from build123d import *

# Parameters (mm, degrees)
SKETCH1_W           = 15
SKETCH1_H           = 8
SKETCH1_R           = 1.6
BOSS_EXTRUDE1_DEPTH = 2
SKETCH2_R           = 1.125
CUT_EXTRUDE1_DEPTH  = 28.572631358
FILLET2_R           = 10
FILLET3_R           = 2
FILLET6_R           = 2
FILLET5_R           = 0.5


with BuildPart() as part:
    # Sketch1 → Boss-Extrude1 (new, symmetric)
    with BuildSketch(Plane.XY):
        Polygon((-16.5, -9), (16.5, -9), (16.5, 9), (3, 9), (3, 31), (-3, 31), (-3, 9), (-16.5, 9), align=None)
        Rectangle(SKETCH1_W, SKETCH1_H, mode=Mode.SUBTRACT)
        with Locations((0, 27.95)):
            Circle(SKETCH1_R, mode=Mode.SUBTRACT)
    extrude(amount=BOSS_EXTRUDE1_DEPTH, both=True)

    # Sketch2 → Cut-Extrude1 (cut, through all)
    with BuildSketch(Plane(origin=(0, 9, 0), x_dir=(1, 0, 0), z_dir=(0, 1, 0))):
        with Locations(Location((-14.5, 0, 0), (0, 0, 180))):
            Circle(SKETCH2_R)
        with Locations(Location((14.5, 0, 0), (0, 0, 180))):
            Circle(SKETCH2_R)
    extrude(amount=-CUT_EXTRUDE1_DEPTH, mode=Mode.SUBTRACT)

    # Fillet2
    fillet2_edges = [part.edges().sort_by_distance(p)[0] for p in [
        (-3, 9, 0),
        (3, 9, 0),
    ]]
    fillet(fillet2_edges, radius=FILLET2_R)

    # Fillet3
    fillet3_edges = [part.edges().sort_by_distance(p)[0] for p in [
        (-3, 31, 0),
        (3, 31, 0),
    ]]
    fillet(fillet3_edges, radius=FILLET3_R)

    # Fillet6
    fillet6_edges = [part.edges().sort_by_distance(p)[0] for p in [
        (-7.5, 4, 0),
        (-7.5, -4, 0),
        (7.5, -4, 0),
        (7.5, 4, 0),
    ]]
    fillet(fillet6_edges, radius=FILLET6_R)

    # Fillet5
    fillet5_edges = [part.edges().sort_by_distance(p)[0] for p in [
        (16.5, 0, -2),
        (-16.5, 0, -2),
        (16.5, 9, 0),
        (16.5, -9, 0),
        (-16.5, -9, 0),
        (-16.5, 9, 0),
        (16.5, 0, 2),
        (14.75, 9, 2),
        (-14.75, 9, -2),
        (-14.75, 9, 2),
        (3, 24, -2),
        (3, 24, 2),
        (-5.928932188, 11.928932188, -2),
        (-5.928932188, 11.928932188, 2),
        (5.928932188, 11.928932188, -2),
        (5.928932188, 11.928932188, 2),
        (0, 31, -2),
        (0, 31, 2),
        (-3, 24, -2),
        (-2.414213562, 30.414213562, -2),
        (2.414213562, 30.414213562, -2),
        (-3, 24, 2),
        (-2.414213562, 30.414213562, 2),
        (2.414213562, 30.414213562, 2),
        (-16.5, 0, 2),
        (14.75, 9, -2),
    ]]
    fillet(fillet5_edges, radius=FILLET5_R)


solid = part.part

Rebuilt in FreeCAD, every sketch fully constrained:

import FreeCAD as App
import Part
import Sketcher

V = App.Vector
Q = App.Units.Quantity


def edges_at(feature, points):
    """Names of the edges that pass closest to the given points."""
    edges = feature.Shape.Edges
    near = lambda p: min(range(len(edges)), key=lambda i: edges[i].distToShape(Part.Vertex(*p))[0])
    return sorted({f"Edge{near(p) + 1}" for p in points})


def add_polygon(sketch, points):
    """Adds a closed chain of lines whose ends are joined by coincident constraints."""
    first, n = sketch.GeometryCount, len(points)
    for a, b in zip(points, points[1:] + points[:1]):
        sketch.addGeometry(Part.LineSegment(App.Vector(*a, 0), App.Vector(*b, 0)), False)
    for i in range(n):
        sketch.addConstraint(Sketcher.Constraint("Coincident", first + i, 2, first + (i + 1) % n, 1))

doc = App.newDocument("Part")
params = doc.addObject("Spreadsheet::Sheet", "Params")
for row, (alias, value) in enumerate([
    ("sketch1_diameter", "3.2 mm"),
    ("sketch1_width", "33 mm"),
    ("sketch1_width2", "6 mm"),
    ("sketch1_width3", "15 mm"),
    ("sketch1_height", "18 mm"),
    ("pad1_length", "4 mm"),
    ("sketch2_diameter", "2.25 mm"),
    ("fillet_radius", "10 mm"),
    ("fillet2_radius", "2 mm"),
    ("fillet3_radius", "2 mm"),
    ("fillet4_radius", "0.5 mm"),
], start=1):
    params.set(f"A{row}", alias)
    params.set(f"B{row}", "=" + value)
    params.setAlias(f"B{row}", alias)

body = doc.addObject("PartDesign::Body", "Body")

sketch1 = body.newObject("Sketcher::SketchObject", "Sketch")
sketch1.AttachmentSupport = (doc.getObject("XY_Plane"), [""])
sketch1.MapMode = "FlatFace"
add_polygon(sketch1, [(-16.5, -9), (16.5, -9), (16.5, 9), (3, 9), (3, 31), (-3, 31), (-3, 9), (-16.5, 9)])
add_polygon(sketch1, [(7.5, -4), (-7.5, -4), (-7.5, 4), (7.5, 4)])
sketch1.addGeometry(Part.Circle(V(0, 27.95, 0), V(0, 0, 1), 1.6), False)
sketch1.addConstraint(Sketcher.Constraint("Horizontal", 0))
sketch1.addConstraint(Sketcher.Constraint("Vertical", 1))
sketch1.addConstraint(Sketcher.Constraint("Horizontal", 2))
sketch1.addConstraint(Sketcher.Constraint("Vertical", 3))
sketch1.addConstraint(Sketcher.Constraint("Horizontal", 4))
sketch1.addConstraint(Sketcher.Constraint("Vertical", 5))
sketch1.addConstraint(Sketcher.Constraint("Horizontal", 6))
sketch1.addConstraint(Sketcher.Constraint("Vertical", 7))
sketch1.addConstraint(Sketcher.Constraint("Horizontal", 8))
sketch1.addConstraint(Sketcher.Constraint("Vertical", 9))
sketch1.addConstraint(Sketcher.Constraint("Horizontal", 10))
sketch1.addConstraint(Sketcher.Constraint("Vertical", 11))
sketch1.addConstraint(Sketcher.Constraint("Symmetric", 0, 2, 6, 2, -1, 1))
sketch1.addConstraint(Sketcher.Constraint("Symmetric", 8, 2, 10, 2, -1, 1))
sketch1.addConstraint(Sketcher.Constraint("Symmetric", 2, 2, 5, 2, -2))
sketch1.addConstraint(Sketcher.Constraint("PointOnObject", 12, 3, -2))
sketch1.addConstraint(Sketcher.Constraint("Diameter", 12, Q("3.2 mm")))
sketch1.addConstraint(Sketcher.Constraint("DistanceX", 0, 1, 0, 2, Q("33 mm")))
sketch1.addConstraint(Sketcher.Constraint("DistanceX", 4, 2, 4, 1, Q("6 mm")))
sketch1.addConstraint(Sketcher.Constraint("DistanceX", 8, 2, 8, 1, Q("15 mm")))
sketch1.addConstraint(Sketcher.Constraint("DistanceY", 1, 1, 1, 2, Q("18 mm")))
sketch1.addConstraint(Sketcher.Constraint("DistanceY", 3, 1, 3, 2, Q("22 mm")))
sketch1.addConstraint(Sketcher.Constraint("DistanceY", 9, 1, 9, 2, Q("8 mm")))
sketch1.addConstraint(Sketcher.Constraint("DistanceY", -1, 1, 12, 3, Q("27.95 mm")))
sketch1.setExpression("Constraints[28]", "Params.sketch1_diameter")
sketch1.setExpression("Constraints[29]", "Params.sketch1_width")
sketch1.setExpression("Constraints[30]", "Params.sketch1_width2")
sketch1.setExpression("Constraints[31]", "Params.sketch1_width3")
sketch1.setExpression("Constraints[32]", "Params.sketch1_height")
pad1 = body.newObject("PartDesign::Pad", "Pad")
pad1.Profile = sketch1
pad1.setExpression("Length", "Params.pad1_length")
pad1.Midplane = True

sketch2 = body.newObject("Sketcher::SketchObject", "Sketch001")
sketch2.AttachmentSupport = (doc.getObject("XZ_Plane"), [""])
sketch2.MapMode = "FlatFace"
sketch2.AttachmentOffset = App.Placement(V(0, 0, -9), App.Rotation())
sketch2.addGeometry(Part.Circle(V(-14.5, 0, 0), V(0, 0, 1), 1.125), False)
sketch2.addGeometry(Part.Circle(V(14.5, 0, 0), V(0, 0, 1), 1.125), False)
sketch2.addConstraint(Sketcher.Constraint("Equal", 0, 1))
sketch2.addConstraint(Sketcher.Constraint("Symmetric", 0, 3, 1, 3, -1, 1))
sketch2.addConstraint(Sketcher.Constraint("PointOnObject", 0, 3, -1))
sketch2.addConstraint(Sketcher.Constraint("Diameter", 0, Q("2.25 mm")))
sketch2.addConstraint(Sketcher.Constraint("DistanceX", 0, 3, 1, 3, Q("29 mm")))
sketch2.setExpression("Constraints[3]", "Params.sketch2_diameter")
pocket1 = body.newObject("PartDesign::Pocket", "Pocket")
pocket1.Profile = sketch2
pocket1.Type = "ThroughAll"
pocket1.Reversed = True
doc.recompute()

fillet = body.newObject("PartDesign::Fillet", "Fillet")
fillet.Base = (pocket1, edges_at(pocket1, [(-3, 9, 0), (3, 9, 0)]))
fillet.setExpression("Radius", "Params.fillet_radius")
doc.recompute()

fillet2 = body.newObject("PartDesign::Fillet", "Fillet001")
fillet2.Base = (fillet, edges_at(fillet, [(-3, 31, 0), (3, 31, 0)]))
fillet2.setExpression("Radius", "Params.fillet2_radius")
doc.recompute()

fillet3 = body.newObject("PartDesign::Fillet", "Fillet002")
fillet3.Base = (fillet2, edges_at(fillet2, [
    (-7.5, 4, 0),
    (-7.5, -4, 0),
    (7.5, -4, 0),
    (7.5, 4, 0),
]))
fillet3.setExpression("Radius", "Params.fillet3_radius")
doc.recompute()

fillet4 = body.newObject("PartDesign::Fillet", "Fillet003")
fillet4.Base = (fillet3, edges_at(fillet3, [
    (16.5, 0, -2),
    (-16.5, 0, -2),
    (16.5, 9, 0),
    (16.5, -9, 0),
    (-16.5, -9, 0),
    (-16.5, 9, 0),
    (16.5, 0, 2),
    (14.75, 9, 2),
    (-14.75, 9, -2),
    (-14.75, 9, 2),
    (3, 24, -2),
    (3, 24, 2),
    (-5.929, 11.929, -2),
    (-5.929, 11.929, 2),
    (5.929, 11.929, -2),
    (5.929, 11.929, 2),
    (0, 31, -2),
    (0, 31, 2),
    (-3, 24, -2),
    (-2.414, 30.414, -2),
    (2.414, 30.414, -2),
    (-3, 24, 2),
    (-2.414, 30.414, 2),
    (2.414, 30.414, 2),
    (-16.5, 0, 2),
    (14.75, 9, -2),
]))
fillet4.setExpression("Radius", "Params.fillet4_radius")

doc.recompute()
